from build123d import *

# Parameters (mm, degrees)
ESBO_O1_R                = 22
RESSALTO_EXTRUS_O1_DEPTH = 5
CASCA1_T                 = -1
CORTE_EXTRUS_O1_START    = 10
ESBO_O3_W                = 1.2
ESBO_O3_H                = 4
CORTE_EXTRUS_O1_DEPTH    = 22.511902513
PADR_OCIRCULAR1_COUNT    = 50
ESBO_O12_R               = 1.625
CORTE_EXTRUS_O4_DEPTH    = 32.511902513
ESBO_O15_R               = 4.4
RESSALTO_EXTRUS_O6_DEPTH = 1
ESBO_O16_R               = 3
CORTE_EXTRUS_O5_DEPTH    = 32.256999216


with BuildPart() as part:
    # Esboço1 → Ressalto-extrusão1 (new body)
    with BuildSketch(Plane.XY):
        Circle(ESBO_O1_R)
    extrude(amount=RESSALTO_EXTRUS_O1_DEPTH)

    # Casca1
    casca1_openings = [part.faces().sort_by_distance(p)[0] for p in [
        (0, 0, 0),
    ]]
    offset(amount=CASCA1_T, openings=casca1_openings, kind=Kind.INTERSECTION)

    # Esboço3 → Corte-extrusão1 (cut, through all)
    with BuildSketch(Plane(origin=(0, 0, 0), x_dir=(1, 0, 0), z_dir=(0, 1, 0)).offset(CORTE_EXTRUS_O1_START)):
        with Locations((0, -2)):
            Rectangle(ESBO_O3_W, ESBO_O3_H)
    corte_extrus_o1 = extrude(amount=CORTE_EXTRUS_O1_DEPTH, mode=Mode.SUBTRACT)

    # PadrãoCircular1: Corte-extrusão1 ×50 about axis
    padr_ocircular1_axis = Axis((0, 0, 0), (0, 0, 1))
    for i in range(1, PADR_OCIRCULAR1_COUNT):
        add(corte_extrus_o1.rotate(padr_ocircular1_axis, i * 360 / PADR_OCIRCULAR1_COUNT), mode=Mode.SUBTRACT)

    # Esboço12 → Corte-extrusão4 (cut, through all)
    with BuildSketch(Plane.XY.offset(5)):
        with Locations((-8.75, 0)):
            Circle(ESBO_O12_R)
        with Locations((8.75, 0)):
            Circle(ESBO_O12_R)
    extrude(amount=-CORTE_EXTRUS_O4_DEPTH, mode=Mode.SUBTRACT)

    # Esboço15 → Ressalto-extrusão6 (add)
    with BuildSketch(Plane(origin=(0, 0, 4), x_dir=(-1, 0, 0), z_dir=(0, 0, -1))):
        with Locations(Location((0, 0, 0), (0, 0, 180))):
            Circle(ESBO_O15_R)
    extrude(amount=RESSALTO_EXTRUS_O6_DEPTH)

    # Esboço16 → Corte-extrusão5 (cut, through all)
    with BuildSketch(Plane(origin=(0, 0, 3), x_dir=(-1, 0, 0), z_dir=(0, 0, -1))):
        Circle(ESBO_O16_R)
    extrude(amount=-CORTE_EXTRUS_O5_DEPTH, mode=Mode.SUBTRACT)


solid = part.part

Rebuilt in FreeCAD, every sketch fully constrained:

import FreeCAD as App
import Part
import Sketcher
Q = App.Units.Quantity


def faces_at(feature, points):
    """Names of the faces that lie closest to the given points."""
    faces = feature.Shape.Faces
    near = lambda p: min(range(len(faces)), key=lambda i: faces[i].distToShape(Part.Vertex(*p))[0])
    return sorted({f"Face{near(p) + 1}" for p in points})

doc = App.newDocument("Part")
body = doc.addObject("PartDesign::Body", "Body")

sketch1 = body.newObject("Sketcher::SketchObject", "Sketch")
sketch1.AttachmentSupport = (doc.getObject("XY_Plane"), [""])
sketch1.MapMode = "FlatFace"
sketch1.addGeometry(Part.Circle(App.Vector(0, 0, 0), App.Vector(0, 0, 1), 22), False)
sketch1.addConstraint(Sketcher.Constraint("Coincident", 0, 3, -1, 1))
sketch1.addConstraint(Sketcher.Constraint("Diameter", 0, Q("44 mm")))
pad1 = body.newObject("PartDesign::Pad", "Pad")
pad1.Profile = sketch1
pad1.Length = 5
doc.recompute()

thickness = body.newObject("PartDesign::Thickness", "Thickness")
thickness.Base = (pad1, faces_at(pad1, [(0, 0, 0)]))
thickness.Value = 1
thickness.Reversed = True
thickness.Join = "Intersection"

sketch2 = body.newObject("Sketcher::SketchObject", "Sketch001")
sketch2.AttachmentSupport = (doc.getObject("XZ_Plane"), [""])
sketch2.MapMode = "FlatFace"
sketch2.AttachmentOffset = App.Placement(App.Vector(0, 0, -10), App.Rotation())
sketch2.addGeometry(Part.LineSegment(App.Vector(-0.6, 0, 0), App.Vector(-0.6, 4, 0)), False)
sketch2.addGeometry(Part.LineSegment(App.Vector(-0.6, 4, 0), App.Vector(0.6, 4, 0)), False)
sketch2.addGeometry(Part.LineSegment(App.Vector(0.6, 4, 0), App.Vector(0.6, 0, 0)), False)
sketch2.addGeometry(Part.LineSegment(App.Vector(0.6, 0, 0), App.Vector(-0.6, 0, 0)), False)
sketch2.addConstraint(Sketcher.Constraint("Coincident", 0, 2, 1, 1))
sketch2.addConstraint(Sketcher.Constraint("Coincident", 1, 2, 2, 1))
sketch2.addConstraint(Sketcher.Constraint("Coincident", 2, 2, 3, 1))
sketch2.addConstraint(Sketcher.Constraint("Coincident", 3, 2, 0, 1))
sketch2.addConstraint(Sketcher.Constraint("Vertical", 0))
sketch2.addConstraint(Sketcher.Constraint("Horizontal", 1))
sketch2.addConstraint(Sketcher.Constraint("Vertical", 2))
sketch2.addConstraint(Sketcher.Constraint("Horizontal", 3))
sketch2.addConstraint(Sketcher.Constraint("Symmetric", 2, 2, 3, 2, -1, 1))
sketch2.addConstraint(Sketcher.Constraint("DistanceY", 0, 1, 0, 2, Q("4 mm")))
sketch2.addConstraint(Sketcher.Constraint("DistanceX", 1, 1, 1, 2, Q("1.2 mm")))
pocket1 = body.newObject("PartDesign::Pocket", "Pocket")
pocket1.Profile = sketch2
pocket1.Type = "ThroughAll"
doc.recompute()

polarpattern = body.newObject("PartDesign::PolarPattern", "PolarPattern")
polarpattern.Originals = [pocket1]
polarpattern.Axis = (doc.getObject("Z_Axis"), [""])
polarpattern.Angle = 360
polarpattern.Occurrences = 50
body.Tip = polarpattern

sketch3 = body.newObject("Sketcher::SketchObject", "Sketch002")
sketch3.AttachmentSupport = (doc.getObject("XY_Plane"), [""])
sketch3.MapMode = "FlatFace"
sketch3.AttachmentOffset = App.Placement(App.Vector(0, 0, 5), App.Rotation())
sketch3.addGeometry(Part.Circle(App.Vector(-8.75, 0, 0), App.Vector(0, 0, 1), 1.625), False)
sketch3.addGeometry(Part.Circle(App.Vector(8.75, 0, 0), App.Vector(0, 0, 1), 1.625), False)
sketch3.addConstraint(Sketcher.Constraint("Equal", 0, 1))
sketch3.addConstraint(Sketcher.Constraint("Symmetric", 0, 3, 1, 3, -1, 1))
sketch3.addConstraint(Sketcher.Constraint("PointOnObject", 0, 3, -1))
sketch3.addConstraint(Sketcher.Constraint("Diameter", 0, Q("3.25 mm")))
sketch3.addConstraint(Sketcher.Constraint("DistanceX", 0, 3, 1, 3, Q("17.5 mm")))
pocket2 = body.newObject("PartDesign::Pocket", "Pocket001")
pocket2.Profile = sketch3
pocket2.Type = "ThroughAll"

sketch4 = body.newObject("Sketcher::SketchObject", "Sketch003")
sketch4.AttachmentSupport = (doc.getObject("XY_Plane"), [""])
sketch4.MapMode = "FlatFace"
sketch4.AttachmentOffset = App.Placement(App.Vector(0, 0, 4), App.Rotation())
sketch4.addGeometry(Part.Circle(App.Vector(0, 0, 0), App.Vector(0, 0, 1), 4.4), False)
sketch4.addConstraint(Sketcher.Constraint("Coincident", 0, 3, -1, 1))
sketch4.addConstraint(Sketcher.Constraint("Diameter", 0, Q("8.8 mm")))
pad2 = body.newObject("PartDesign::Pad", "Pad001")
pad2.Profile = sketch4
pad2.Length = 1
pad2.Reversed = True

sketch5 = body.newObject("Sketcher::SketchObject", "Sketch004")
sketch5.AttachmentSupport = (doc.getObject("XY_Plane"), [""])
sketch5.MapMode = "FlatFace"
sketch5.AttachmentOffset = App.Placement(App.Vector(0, 0, 3), App.Rotation())
sketch5.addGeometry(Part.Circle(App.Vector(0, 0, 0), App.Vector(0, 0, 1), 3), False)
sketch5.addConstraint(Sketcher.Constraint("Coincident", 0, 3, -1, 1))
sketch5.addConstraint(Sketcher.Constraint("Diameter", 0, Q("6 mm")))
pocket3 = body.newObject("PartDesign::Pocket", "Pocket002")
pocket3.Profile = sketch5
pocket3.Type = "ThroughAll"
pocket3.Reversed = True

doc.recompute()
